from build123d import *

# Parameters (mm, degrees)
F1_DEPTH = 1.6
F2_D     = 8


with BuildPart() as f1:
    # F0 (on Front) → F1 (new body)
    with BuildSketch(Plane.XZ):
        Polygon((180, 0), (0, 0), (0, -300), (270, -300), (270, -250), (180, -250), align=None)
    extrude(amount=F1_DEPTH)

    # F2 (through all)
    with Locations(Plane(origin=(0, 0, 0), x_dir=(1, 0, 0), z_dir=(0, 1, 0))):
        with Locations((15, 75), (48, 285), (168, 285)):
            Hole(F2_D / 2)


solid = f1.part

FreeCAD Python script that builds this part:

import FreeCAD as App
import Part
import Sketcher
from FreeCAD import Vector
Q = App.Units.Quantity


def add_polygon(sketch, points):
    """Adds a closed chain of lines whose ends are joined by coincident constraints."""
    first, n = sketch.GeometryCount, len(points)
    for a, b in zip(points, points[1:] + points[:1]):
        sketch.addGeometry(Part.LineSegment(App.Vector(*a, 0), App.Vector(*b, 0)), False)
    for i in range(n):
        sketch.addConstraint(Sketcher.Constraint("Coincident", first + i, 2, first + (i + 1) % n, 1))

doc = App.newDocument("Part")
body = doc.addObject("PartDesign::Body", "Body")

sketch1 = doc.addObject("Sketcher::SketchObject", "Sketch")
body.addObject(sketch1)
sketch1.AttachmentSupport = (doc.XZ_Plane, [""])
sketch1.MapMode = "FlatFace"
add_polygon(sketch1, [(180, 0), (0, 0), (0, -300), (270, -300), (270, -250), (180, -250)])
sketch1.addConstraint([
    Sketcher.Constraint("Horizontal", 0),
    Sketcher.Constraint("Vertical", 1),
    Sketcher.Constraint("Horizontal", 2),
    Sketcher.Constraint("Vertical", 3),
    Sketcher.Constraint("Horizontal", 4),
    Sketcher.Constraint("Vertical", 5),
    Sketcher.Constraint("Coincident", 0, 2, -1, 1),
    Sketcher.Constraint("DistanceX", 0, 2, 0, 1, Q("180 mm")),
    Sketcher.Constraint("DistanceX", 2, 1, 2, 2, Q("270 mm")),
    Sketcher.Constraint("DistanceY", 1, 2, 1, 1, Q("300 mm")),
    Sketcher.Constraint("DistanceY", 3, 1, 3, 2, Q("50 mm")),
])
pad1 = doc.addObject("PartDesign::Pad", "Pad")
body.addObject(pad1)
pad1.Profile = sketch1
pad1.Length = 1.6

sketch2 = doc.addObject("Sketcher::SketchObject", "Sketch001")
body.addObject(sketch2)
sketch2.AttachmentSupport = (doc.XZ_Plane, [""])
sketch2.MapMode = "FlatFace"
sketch2.addGeometry([
    Part.Circle(Vector(15, -75, 0), Vector(0, 0, 1), 4),
    Part.Circle(Vector(48, -285, 0), Vector(0, 0, 1), 4),
    Part.Circle(Vector(168, -285, 0), Vector(0, 0, 1), 4),
], False)
sketch2.addConstraint([
    Sketcher.Constraint("Equal", 0, 1),
    Sketcher.Constraint("Equal", 1, 2),
    Sketcher.Constraint("Horizontal", 1, 3, 2, 3),
    Sketcher.Constraint("Diameter", 0, Q("8 mm")),
    Sketcher.Constraint("DistanceX", -1, 1, 0, 3, Q("15 mm")),
    Sketcher.Constraint("DistanceY", 0, 3, -1, 1, Q("75 mm")),
    Sketcher.Constraint("DistanceX", -1, 1, 1, 3, Q("48 mm")),
    Sketcher.Constraint("DistanceY", 1, 3, -1, 1, Q("285 mm")),
    Sketcher.Constraint("DistanceX", -1, 1, 2, 3, Q("168 mm")),
])
doc.recompute()
hole = doc.addObject("PartDesign::Hole", "Hole")
body.addObject(hole)
hole.Profile = sketch2
hole.ThreadType = "None"
hole.Diameter = 8
hole.DepthType = "ThroughAll"
hole.Reversed = True

doc.recompute()
